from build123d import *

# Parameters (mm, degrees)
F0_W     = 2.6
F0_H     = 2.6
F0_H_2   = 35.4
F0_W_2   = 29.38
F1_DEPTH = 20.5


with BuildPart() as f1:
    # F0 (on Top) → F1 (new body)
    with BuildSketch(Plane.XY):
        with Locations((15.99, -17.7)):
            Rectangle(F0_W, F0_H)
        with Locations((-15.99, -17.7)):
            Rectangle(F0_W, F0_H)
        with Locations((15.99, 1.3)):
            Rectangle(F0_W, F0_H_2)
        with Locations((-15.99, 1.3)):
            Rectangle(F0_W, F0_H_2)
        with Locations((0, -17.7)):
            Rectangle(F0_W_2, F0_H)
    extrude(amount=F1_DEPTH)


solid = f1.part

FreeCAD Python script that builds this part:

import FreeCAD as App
import Part
import Sketcher


def add_polygon(sketch, points):
    """Adds a closed chain of lines whose ends are joined by coincident constraints."""
    first, n = sketch.GeometryCount, len(points)
    for a, b in zip(points, points[1:] + points[:1]):
        sketch.addGeometry(Part.LineSegment(App.Vector(*a, 0), App.Vector(*b, 0)), False)
    for i in range(n):
        sketch.addConstraint(Sketcher.Constraint("Coincident", first + i, 2, first + (i + 1) % n, 1))

doc = App.newDocument("Part")
params = doc.addObject("Spreadsheet::Sheet", "Params")
for row, (alias, value) in enumerate([
    ("sketch1_height", "38 mm"),
    ("sketch1_width", "2.6 mm"),
    ("sketch1_height2", "35.4 mm"),
    ("sketch1_width2", "29.38 mm"),
    ("pad1_length", "20.5 mm"),
], start=1):
    params.set(f"A{row}", alias)
    params.set(f"B{row}", "=" + value)
    params.setAlias(f"B{row}", alias)

body = doc.addObject("PartDesign::Body", "Body")

# Sketch on XY plane
sketch1 = body.newObject("Sketcher::SketchObject", "Sketch")
sketch1.AttachmentSupport = (doc.getObject("XY_Plane"), [""])
sketch1.MapMode = "FlatFace"
add_polygon(sketch1, [(17.3, -19), (17.3, 19), (14.7, 19), (14.7, -16.4), (-14.7, -16.4), (-14.7, 19), (-17.3, 19), (-17.3, -19)])  # lines 0-7
sketch1.addConstraint([
    Sketcher.Constraint("Vertical", 0),
    Sketcher.Constraint("Horizontal", 1),
    Sketcher.Constraint("Vertical", 2),
    Sketcher.Constraint("Horizontal", 3),
    Sketcher.Constraint("Vertical", 4),
    Sketcher.Constraint("Horizontal", 5),
    Sketcher.Constraint("Vertical", 6),
    Sketcher.Constraint("Horizontal", 7),
    Sketcher.Constraint("Symmetric", 0, 2, 6, 2, -1, 1),
    Sketcher.Constraint("Symmetric", 1, 2, 4, 2, -2),
    Sketcher.Constraint("DistanceY", 0, 1, 0, 2, 38.0),
    Sketcher.Constraint("DistanceX", 1, 2, 1, 1, 2.6),
    Sketcher.Constraint("DistanceY", 2, 2, 2, 1, 35.4),
    Sketcher.Constraint("DistanceX", 3, 2, 3, 1, 29.38),
])
sketch1.setExpression("Constraints[18]", "Params.sketch1_height")
sketch1.setExpression("Constraints[19]", "Params.sketch1_width")
sketch1.setExpression("Constraints[20]", "Params.sketch1_height2")
sketch1.setExpression("Constraints[21]", "Params.sketch1_width2")
pad1 = body.newObject("PartDesign::Pad", "Pad")
pad1.Profile = sketch1
pad1.setExpression("Length", "Params.pad1_length")

doc.recompute()
